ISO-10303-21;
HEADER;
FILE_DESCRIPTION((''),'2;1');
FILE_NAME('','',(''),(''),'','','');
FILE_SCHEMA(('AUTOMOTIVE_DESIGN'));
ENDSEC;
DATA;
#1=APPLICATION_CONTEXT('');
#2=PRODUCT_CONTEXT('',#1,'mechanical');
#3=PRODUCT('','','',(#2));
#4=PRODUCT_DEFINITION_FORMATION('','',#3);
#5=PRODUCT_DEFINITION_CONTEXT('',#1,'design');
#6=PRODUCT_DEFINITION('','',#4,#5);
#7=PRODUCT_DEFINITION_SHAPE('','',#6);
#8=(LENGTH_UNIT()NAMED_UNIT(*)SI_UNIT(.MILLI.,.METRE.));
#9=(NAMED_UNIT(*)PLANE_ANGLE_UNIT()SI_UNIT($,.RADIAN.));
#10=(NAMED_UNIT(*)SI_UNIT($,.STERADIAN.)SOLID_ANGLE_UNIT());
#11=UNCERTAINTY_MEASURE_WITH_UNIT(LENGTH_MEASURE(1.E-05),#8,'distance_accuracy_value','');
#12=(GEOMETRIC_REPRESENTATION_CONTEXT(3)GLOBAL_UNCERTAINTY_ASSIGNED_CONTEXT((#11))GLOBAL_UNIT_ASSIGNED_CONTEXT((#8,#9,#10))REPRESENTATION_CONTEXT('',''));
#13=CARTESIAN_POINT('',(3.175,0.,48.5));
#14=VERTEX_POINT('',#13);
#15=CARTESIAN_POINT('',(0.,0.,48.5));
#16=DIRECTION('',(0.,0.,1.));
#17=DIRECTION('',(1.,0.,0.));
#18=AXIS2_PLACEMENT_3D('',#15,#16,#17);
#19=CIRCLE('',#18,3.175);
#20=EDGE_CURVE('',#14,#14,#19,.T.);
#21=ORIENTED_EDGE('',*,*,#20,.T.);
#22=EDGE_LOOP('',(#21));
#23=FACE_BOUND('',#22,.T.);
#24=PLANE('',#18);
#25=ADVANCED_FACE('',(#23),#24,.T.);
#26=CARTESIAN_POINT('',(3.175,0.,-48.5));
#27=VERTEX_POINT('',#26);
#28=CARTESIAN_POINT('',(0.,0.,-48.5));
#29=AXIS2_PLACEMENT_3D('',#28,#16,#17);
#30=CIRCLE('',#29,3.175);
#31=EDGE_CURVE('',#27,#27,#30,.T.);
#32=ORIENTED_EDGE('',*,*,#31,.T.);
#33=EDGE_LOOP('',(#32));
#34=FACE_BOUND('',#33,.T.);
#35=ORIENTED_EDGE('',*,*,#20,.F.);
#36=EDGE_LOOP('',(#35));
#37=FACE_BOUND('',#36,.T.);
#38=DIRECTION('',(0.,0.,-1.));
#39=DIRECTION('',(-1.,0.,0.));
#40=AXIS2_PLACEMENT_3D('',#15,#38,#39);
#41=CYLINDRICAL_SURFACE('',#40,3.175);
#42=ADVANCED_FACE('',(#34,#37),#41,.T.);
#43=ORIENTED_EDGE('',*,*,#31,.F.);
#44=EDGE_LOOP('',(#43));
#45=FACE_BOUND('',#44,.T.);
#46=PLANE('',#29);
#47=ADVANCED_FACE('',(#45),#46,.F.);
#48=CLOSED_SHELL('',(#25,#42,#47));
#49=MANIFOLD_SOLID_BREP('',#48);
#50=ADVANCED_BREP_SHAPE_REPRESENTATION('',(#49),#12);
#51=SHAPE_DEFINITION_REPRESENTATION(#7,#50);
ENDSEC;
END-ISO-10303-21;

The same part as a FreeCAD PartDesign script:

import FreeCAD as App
import Part
import Sketcher
from FreeCAD import Vector
Q = App.Units.Quantity

doc = App.newDocument("Part")
body = doc.addObject("PartDesign::Body", "Body")

sketch1 = body.newObject("Sketcher::SketchObject", "Sketch")
sketch1.AttachmentSupport = (doc.getObject("XY_Plane"), [""])
sketch1.MapMode = "FlatFace"
sketch1.addGeometry(Part.Circle(Vector(0, 0, 0), Vector(0, 0, 1), 3.175), False)
sketch1.addConstraint(Sketcher.Constraint("Coincident", 0, 3, -1, 1))
sketch1.addConstraint(Sketcher.Constraint("Diameter", 0, Q("6.35 mm")))
pad1 = body.newObject("PartDesign::Pad", "Pad")
pad1.Profile = sketch1
pad1.Length = 97
pad1.Midplane = True

doc.recompute()
